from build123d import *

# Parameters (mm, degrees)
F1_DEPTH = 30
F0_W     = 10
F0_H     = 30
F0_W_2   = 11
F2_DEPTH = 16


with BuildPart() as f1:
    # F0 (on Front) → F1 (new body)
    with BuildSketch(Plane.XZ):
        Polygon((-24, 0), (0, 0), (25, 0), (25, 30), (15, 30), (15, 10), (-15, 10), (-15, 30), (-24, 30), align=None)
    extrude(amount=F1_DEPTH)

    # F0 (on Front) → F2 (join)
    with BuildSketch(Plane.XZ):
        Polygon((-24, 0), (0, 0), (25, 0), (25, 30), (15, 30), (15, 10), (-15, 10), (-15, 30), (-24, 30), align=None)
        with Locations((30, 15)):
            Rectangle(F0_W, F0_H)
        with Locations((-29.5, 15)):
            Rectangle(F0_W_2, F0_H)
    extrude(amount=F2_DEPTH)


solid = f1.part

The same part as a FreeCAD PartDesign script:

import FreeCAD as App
import Part
import Sketcher

V = App.Vector
Q = App.Units.Quantity

doc = App.newDocument("Part")
body = doc.addObject("PartDesign::Body", "Body")

# Sketch on XZ plane
sketch1 = doc.addObject("Sketcher::SketchObject", "Sketch")
body.addObject(sketch1)
sketch1.AttachmentSupport = (doc.XZ_Plane, [""])
sketch1.MapMode = "FlatFace"
sketch1.addGeometry(Part.LineSegment(V(-24, 0, 0), V(25, 0, 0)), False)
sketch1.addGeometry(Part.LineSegment(V(25, 0, 0), V(25, 30, 0)), False)
sketch1.addGeometry(Part.LineSegment(V(25, 30, 0), V(15, 30, 0)), False)
sketch1.addGeometry(Part.LineSegment(V(15, 30, 0), V(15, 10, 0)), False)
sketch1.addGeometry(Part.LineSegment(V(15, 10, 0), V(-15, 10, 0)), False)
sketch1.addGeometry(Part.LineSegment(V(-15, 10, 0), V(-15, 30, 0)), False)
sketch1.addGeometry(Part.LineSegment(V(-15, 30, 0), V(-24, 30, 0)), False)
sketch1.addGeometry(Part.LineSegment(V(-24, 30, 0), V(-24, 0, 0)), False)
sketch1.addConstraint(Sketcher.Constraint("Coincident", 0, 2, 1, 1))
sketch1.addConstraint(Sketcher.Constraint("Coincident", 1, 2, 2, 1))
sketch1.addConstraint(Sketcher.Constraint("Coincident", 2, 2, 3, 1))
sketch1.addConstraint(Sketcher.Constraint("Coincident", 3, 2, 4, 1))
sketch1.addConstraint(Sketcher.Constraint("Coincident", 4, 2, 5, 1))
sketch1.addConstraint(Sketcher.Constraint("Coincident", 5, 2, 6, 1))
sketch1.addConstraint(Sketcher.Constraint("Coincident", 6, 2, 7, 1))
sketch1.addConstraint(Sketcher.Constraint("Coincident", 7, 2, 0, 1))
sketch1.addConstraint(Sketcher.Constraint("Horizontal", 0))
sketch1.addConstraint(Sketcher.Constraint("Vertical", 1))
sketch1.addConstraint(Sketcher.Constraint("Horizontal", 2))
sketch1.addConstraint(Sketcher.Constraint("Vertical", 3))
sketch1.addConstraint(Sketcher.Constraint("Horizontal", 4))
sketch1.addConstraint(Sketcher.Constraint("Vertical", 5))
sketch1.addConstraint(Sketcher.Constraint("Horizontal", 6))
sketch1.addConstraint(Sketcher.Constraint("Vertical", 7))
sketch1.addConstraint(Sketcher.Constraint("Symmetric", 2, 2, 5, 2, -2))
sketch1.addConstraint(Sketcher.Constraint("PointOnObject", 0, 2, -1))
sketch1.addConstraint(Sketcher.Constraint("Equal", 4, 1))
sketch1.addConstraint(Sketcher.Constraint("DistanceX", 0, 1, 0, 2, Q("49 mm")))
sketch1.addConstraint(Sketcher.Constraint("DistanceX", 2, 2, 2, 1, Q("10 mm")))
sketch1.addConstraint(Sketcher.Constraint("DistanceX", 4, 2, 4, 1, Q("30 mm")))
sketch1.addConstraint(Sketcher.Constraint("DistanceY", 3, 2, 3, 1, Q("20 mm")))
pad1 = doc.addObject("PartDesign::Pad", "Pad")
body.addObject(pad1)
pad1.Profile = sketch1
pad1.Length = 30

# Sketch on XZ plane
sketch2 = doc.addObject("Sketcher::SketchObject", "Sketch001")
body.addObject(sketch2)
sketch2.AttachmentSupport = (doc.XZ_Plane, [""])
sketch2.MapMode = "FlatFace"
sketch2.addGeometry(Part.LineSegment(V(35, 0, 0), V(35, 30, 0)), False)
sketch2.addGeometry(Part.LineSegment(V(35, 30, 0), V(15, 30, 0)), False)
sketch2.addGeometry(Part.LineSegment(V(15, 30, 0), V(15, 10, 0)), False)
sketch2.addGeometry(Part.LineSegment(V(15, 10, 0), V(-15, 10, 0)), False)
sketch2.addGeometry(Part.LineSegment(V(-15, 10, 0), V(-15, 30, 0)), False)
sketch2.addGeometry(Part.LineSegment(V(-15, 30, 0), V(-35, 30, 0)), False)
sketch2.addGeometry(Part.LineSegment(V(-35, 30, 0), V(-35, 0, 0)), False)
sketch2.addGeometry(Part.LineSegment(V(-35, 0, 0), V(35, 0, 0)), False)
sketch2.addConstraint(Sketcher.Constraint("Coincident", 0, 2, 1, 1))
sketch2.addConstraint(Sketcher.Constraint("Coincident", 1, 2, 2, 1))
sketch2.addConstraint(Sketcher.Constraint("Coincident", 2, 2, 3, 1))
sketch2.addConstraint(Sketcher.Constraint("Coincident", 3, 2, 4, 1))
sketch2.addConstraint(Sketcher.Constraint("Coincident", 4, 2, 5, 1))
sketch2.addConstraint(Sketcher.Constraint("Coincident", 5, 2, 6, 1))
sketch2.addConstraint(Sketcher.Constraint("Coincident", 6, 2, 7, 1))
sketch2.addConstraint(Sketcher.Constraint("Coincident", 7, 2, 0, 1))
sketch2.addConstraint(Sketcher.Constraint("Vertical", 0))
sketch2.addConstraint(Sketcher.Constraint("Horizontal", 1))
sketch2.addConstraint(Sketcher.Constraint("Vertical", 2))
sketch2.addConstraint(Sketcher.Constraint("Horizontal", 3))
sketch2.addConstraint(Sketcher.Constraint("Vertical", 4))
sketch2.addConstraint(Sketcher.Constraint("Horizontal", 5))
sketch2.addConstraint(Sketcher.Constraint("Vertical", 6))
sketch2.addConstraint(Sketcher.Constraint("Horizontal", 7))
sketch2.addConstraint(Sketcher.Constraint("Symmetric", 6, 2, 7, 2, -1, 1))
sketch2.addConstraint(Sketcher.Constraint("Symmetric", 1, 2, 4, 2, -2))
sketch2.addConstraint(Sketcher.Constraint("Equal", 3, 0))
sketch2.addConstraint(Sketcher.Constraint("Equal", 5, 2))
sketch2.addConstraint(Sketcher.Constraint("DistanceX", 1, 2, 1, 1, Q("20 mm")))
sketch2.addConstraint(Sketcher.Constraint("DistanceX", 3, 2, 3, 1, Q("30 mm")))
pad2 = doc.addObject("PartDesign::Pad", "Pad001")
body.addObject(pad2)
pad2.Profile = sketch2
pad2.Length = 16

doc.recompute()
